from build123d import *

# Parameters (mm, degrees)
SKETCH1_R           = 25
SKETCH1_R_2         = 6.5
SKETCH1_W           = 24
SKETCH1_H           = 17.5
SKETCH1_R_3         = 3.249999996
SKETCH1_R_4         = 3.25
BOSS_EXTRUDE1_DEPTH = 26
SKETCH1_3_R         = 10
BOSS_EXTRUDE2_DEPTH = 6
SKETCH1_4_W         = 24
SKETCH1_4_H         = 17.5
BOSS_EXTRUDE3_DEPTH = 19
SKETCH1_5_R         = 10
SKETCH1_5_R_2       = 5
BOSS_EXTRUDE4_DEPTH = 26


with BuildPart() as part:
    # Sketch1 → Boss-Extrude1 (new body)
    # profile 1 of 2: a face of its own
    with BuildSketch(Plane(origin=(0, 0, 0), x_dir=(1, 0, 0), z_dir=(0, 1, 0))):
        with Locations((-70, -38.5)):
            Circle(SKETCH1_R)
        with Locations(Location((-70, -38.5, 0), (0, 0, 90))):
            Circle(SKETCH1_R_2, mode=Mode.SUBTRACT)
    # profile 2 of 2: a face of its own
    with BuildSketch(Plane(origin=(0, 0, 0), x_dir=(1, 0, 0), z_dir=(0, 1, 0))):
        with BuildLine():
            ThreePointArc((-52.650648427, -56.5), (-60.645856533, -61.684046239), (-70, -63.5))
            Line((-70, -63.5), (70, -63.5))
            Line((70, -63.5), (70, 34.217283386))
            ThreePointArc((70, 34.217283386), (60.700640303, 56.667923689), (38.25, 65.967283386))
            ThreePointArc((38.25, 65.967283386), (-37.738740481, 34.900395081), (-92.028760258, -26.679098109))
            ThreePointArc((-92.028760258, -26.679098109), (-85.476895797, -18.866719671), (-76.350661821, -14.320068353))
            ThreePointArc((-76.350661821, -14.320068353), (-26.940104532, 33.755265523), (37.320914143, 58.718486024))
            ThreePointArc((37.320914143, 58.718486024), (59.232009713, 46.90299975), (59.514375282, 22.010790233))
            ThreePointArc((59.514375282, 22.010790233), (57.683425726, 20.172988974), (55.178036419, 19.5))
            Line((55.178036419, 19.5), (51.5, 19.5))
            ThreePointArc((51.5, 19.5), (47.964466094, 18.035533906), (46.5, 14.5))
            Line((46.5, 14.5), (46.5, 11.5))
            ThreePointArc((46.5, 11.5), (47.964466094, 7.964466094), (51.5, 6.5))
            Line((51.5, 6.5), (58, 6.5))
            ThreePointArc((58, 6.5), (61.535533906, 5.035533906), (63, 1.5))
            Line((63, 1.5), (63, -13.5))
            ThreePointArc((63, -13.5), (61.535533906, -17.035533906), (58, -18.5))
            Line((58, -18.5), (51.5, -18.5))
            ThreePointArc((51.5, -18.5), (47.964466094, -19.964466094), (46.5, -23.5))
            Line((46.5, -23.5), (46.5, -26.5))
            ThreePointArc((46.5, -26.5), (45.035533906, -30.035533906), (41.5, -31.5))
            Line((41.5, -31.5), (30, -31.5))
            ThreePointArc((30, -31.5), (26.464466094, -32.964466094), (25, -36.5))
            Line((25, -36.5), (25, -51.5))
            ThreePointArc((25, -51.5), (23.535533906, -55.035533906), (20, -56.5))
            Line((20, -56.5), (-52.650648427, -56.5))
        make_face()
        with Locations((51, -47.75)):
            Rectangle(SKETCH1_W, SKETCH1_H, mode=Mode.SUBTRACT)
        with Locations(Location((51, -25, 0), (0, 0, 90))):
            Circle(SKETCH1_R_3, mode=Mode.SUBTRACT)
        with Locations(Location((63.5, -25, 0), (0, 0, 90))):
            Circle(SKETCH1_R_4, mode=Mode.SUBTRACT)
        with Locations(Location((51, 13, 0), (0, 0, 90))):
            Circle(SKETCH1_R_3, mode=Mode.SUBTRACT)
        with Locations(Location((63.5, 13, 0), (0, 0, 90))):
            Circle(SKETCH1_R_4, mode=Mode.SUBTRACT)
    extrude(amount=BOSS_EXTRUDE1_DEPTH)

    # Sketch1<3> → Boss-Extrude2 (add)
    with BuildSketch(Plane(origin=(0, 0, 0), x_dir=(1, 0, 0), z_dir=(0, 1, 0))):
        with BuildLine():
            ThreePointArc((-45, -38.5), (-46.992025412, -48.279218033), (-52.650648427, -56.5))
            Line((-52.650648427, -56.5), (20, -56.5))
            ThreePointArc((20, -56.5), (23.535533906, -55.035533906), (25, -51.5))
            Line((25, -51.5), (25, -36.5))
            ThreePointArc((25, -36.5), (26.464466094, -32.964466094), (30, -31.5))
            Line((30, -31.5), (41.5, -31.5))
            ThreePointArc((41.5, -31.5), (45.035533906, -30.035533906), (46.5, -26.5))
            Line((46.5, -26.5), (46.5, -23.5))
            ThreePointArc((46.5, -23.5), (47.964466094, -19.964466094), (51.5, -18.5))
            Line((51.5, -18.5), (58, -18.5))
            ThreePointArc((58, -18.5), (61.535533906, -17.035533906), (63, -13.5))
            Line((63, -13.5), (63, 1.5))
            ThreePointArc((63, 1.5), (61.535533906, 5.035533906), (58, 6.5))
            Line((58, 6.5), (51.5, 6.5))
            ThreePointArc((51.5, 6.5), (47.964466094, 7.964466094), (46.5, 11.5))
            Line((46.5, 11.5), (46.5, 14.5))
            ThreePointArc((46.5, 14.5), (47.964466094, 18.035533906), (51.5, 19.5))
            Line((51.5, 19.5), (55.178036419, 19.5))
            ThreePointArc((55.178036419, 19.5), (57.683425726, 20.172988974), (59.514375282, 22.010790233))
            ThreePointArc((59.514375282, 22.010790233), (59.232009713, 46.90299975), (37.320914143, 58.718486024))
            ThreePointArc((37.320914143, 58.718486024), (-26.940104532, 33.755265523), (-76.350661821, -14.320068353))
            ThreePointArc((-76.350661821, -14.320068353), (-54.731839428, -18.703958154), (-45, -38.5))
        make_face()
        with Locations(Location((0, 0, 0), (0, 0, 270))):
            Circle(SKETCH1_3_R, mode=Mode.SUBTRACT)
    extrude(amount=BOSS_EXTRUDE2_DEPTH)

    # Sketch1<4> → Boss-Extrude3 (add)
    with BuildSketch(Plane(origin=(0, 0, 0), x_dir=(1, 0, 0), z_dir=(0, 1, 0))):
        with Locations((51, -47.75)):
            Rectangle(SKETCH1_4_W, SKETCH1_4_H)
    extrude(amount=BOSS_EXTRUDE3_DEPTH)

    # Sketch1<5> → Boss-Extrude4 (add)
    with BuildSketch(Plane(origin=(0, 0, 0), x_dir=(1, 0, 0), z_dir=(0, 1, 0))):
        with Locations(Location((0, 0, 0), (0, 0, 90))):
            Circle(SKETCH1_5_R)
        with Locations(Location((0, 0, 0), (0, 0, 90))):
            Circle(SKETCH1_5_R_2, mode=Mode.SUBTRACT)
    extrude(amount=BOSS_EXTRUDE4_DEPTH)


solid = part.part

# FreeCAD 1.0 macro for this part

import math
import FreeCAD as App
import Part
import Sketcher
from FreeCAD import Vector

doc = App.newDocument("Part")
body = doc.addObject("PartDesign::Body", "Body")

# Sketch on XZ plane
sketch1 = body.newObject("Sketcher::SketchObject", "Sketch")
sketch1.AttachmentSupport = (doc.getObject("XZ_Plane"), [""])
sketch1.MapMode = "FlatFace"
sketch1.addGeometry([
    Part.ArcOfCircle(Part.Circle(Vector(-70, 38.5, 0), Vector(0, 0, 1), 25), math.radians(90), math.radians(208.21855)),  # 0
    Part.LineSegment(Vector(-70, 63.5, 0), Vector(70, 63.5, 0)),  # 1
    Part.LineSegment(Vector(70, 63.5, 0), Vector(70, -34.217283, 0)),  # 2
    Part.ArcOfCircle(Part.Circle(Vector(38.25, -34.217283, 0), Vector(0, 0, 1), 31.75), math.radians(-90), math.radians(0)),  # 3
    Part.ArcOfCircle(Part.Circle(Vector(66.578314, 111.789592, 0), Vector(0, 0, 1), 180), math.radians(-151.78145), math.radians(-99.054827)),  # 4
    Part.ArcOfCircle(Part.Circle(Vector(66.578314, 111.789592, 0), Vector(0, 0, 1), 173), math.radians(-145.708211), math.radians(-99.736537)),  # 5
    Part.ArcOfCircle(Part.Circle(Vector(38.25, -34.217283, 0), Vector(0, 0, 1), 24.518812), math.radians(-92.171616), math.radians(29.857327)),  # 6
    Part.ArcOfCircle(Part.Circle(Vector(55.178036, -24.5, 0), Vector(0, 0, 1), 5), math.radians(29.857327), math.radians(90)),  # 7
    Part.LineSegment(Vector(55.178036, -19.5, 0), Vector(51.5, -19.5, 0)),  # 8
    Part.ArcOfCircle(Part.Circle(Vector(51.5, -14.5, 0), Vector(0, 0, 1), 5), math.radians(180), math.radians(270)),  # 9
    Part.LineSegment(Vector(46.5, -14.5, 0), Vector(46.5, -11.5, 0)),  # 10
    Part.ArcOfCircle(Part.Circle(Vector(51.5, -11.5, 0), Vector(0, 0, 1), 5), math.radians(90), math.radians(180)),  # 11
    Part.LineSegment(Vector(51.5, -6.5, 0), Vector(58, -6.5, 0)),  # 12
    Part.ArcOfCircle(Part.Circle(Vector(58, -1.5, 0), Vector(0, 0, 1), 5), math.radians(-90), math.radians(0)),  # 13
    Part.LineSegment(Vector(63, -1.5, 0), Vector(63, 13.5, 0)),  # 14
    Part.ArcOfCircle(Part.Circle(Vector(58, 13.5, 0), Vector(0, 0, 1), 5), math.radians(0), math.radians(90)),  # 15
    Part.LineSegment(Vector(58, 18.5, 0), Vector(51.5, 18.5, 0)),  # 16
    Part.ArcOfCircle(Part.Circle(Vector(51.5, 23.5, 0), Vector(0, 0, 1), 5), math.radians(180), math.radians(270)),  # 17
    Part.LineSegment(Vector(46.5, 23.5, 0), Vector(46.5, 26.5, 0)),  # 18
    Part.ArcOfCircle(Part.Circle(Vector(41.5, 26.5, 0), Vector(0, 0, 1), 5), math.radians(0), math.radians(90)),  # 19
    Part.LineSegment(Vector(41.5, 31.5, 0), Vector(30, 31.5, 0)),  # 20
    Part.ArcOfCircle(Part.Circle(Vector(30, 36.5, 0), Vector(0, 0, 1), 5), math.radians(180), math.radians(270)),  # 21
    Part.LineSegment(Vector(25, 36.5, 0), Vector(25, 51.5, 0)),  # 22
    Part.ArcOfCircle(Part.Circle(Vector(20, 51.5, 0), Vector(0, 0, 1), 5), math.radians(0), math.radians(90)),  # 23
    Part.LineSegment(Vector(20, 56.5, 0), Vector(-52.650648, 56.5, 0)),  # 24
    Part.ArcOfCircle(Part.Circle(Vector(-70, 38.5, 0), Vector(0, 0, 1), 25), math.radians(-104.715907), math.radians(46.05448)),  # 25
    Part.Circle(Vector(-70, 38.5, 0), Vector(0, 0, 1), 6.5),  # 26
    Part.Circle(Vector(51, -13, 0), Vector(0, 0, 1), 3.25),  # 27
    Part.Circle(Vector(63.5, -13, 0), Vector(0, 0, 1), 3.25),  # 28
    Part.LineSegment(Vector(63, 56.5, 0), Vector(39, 56.5, 0)),  # 29
    Part.LineSegment(Vector(39, 56.5, 0), Vector(39, 39, 0)),  # 30
    Part.LineSegment(Vector(39, 39, 0), Vector(63, 39, 0)),  # 31
    Part.LineSegment(Vector(63, 39, 0), Vector(63, 56.5, 0)),  # 32
    Part.Circle(Vector(51, 25, 0), Vector(0, 0, 1), 3.25),  # 33
    Part.Circle(Vector(63.5, 25, 0), Vector(0, 0, 1), 3.25),  # 34
], False)
sketch1.addConstraint([
    Sketcher.Constraint("Tangent", 0, 1, 1, 1),
    Sketcher.Constraint("Coincident", 1, 2, 2, 1),
    Sketcher.Constraint("Tangent", 2, 2, 3, 2),
    Sketcher.Constraint("Coincident", 3, 1, 4, 2),
    Sketcher.Constraint("Tangent", 4, 1, 0, 2),
    Sketcher.Constraint("Coincident", 5, 2, 6, 1),
    Sketcher.Constraint("Tangent", 6, 2, 7, 1),
    Sketcher.Constraint("Tangent", 7, 2, 8, 1),
    Sketcher.Constraint("Tangent", 8, 2, 9, 2),
    Sketcher.Constraint("Tangent", 9, 1, 10, 1),
    Sketcher.Constraint("Tangent", 10, 2, 11, 2),
    Sketcher.Constraint("Tangent", 11, 1, 12, 1),
    Sketcher.Constraint("Tangent", 12, 2, 13, 1),
    Sketcher.Constraint("Tangent", 13, 2, 14, 1),
    Sketcher.Constraint("Tangent", 14, 2, 15, 1),
    Sketcher.Constraint("Tangent", 15, 2, 16, 1),
    Sketcher.Constraint("Tangent", 16, 2, 17, 2),
    Sketcher.Constraint("Tangent", 17, 1, 18, 1),
    Sketcher.Constraint("Tangent", 18, 2, 19, 1),
    Sketcher.Constraint("Tangent", 19, 2, 20, 1),
    Sketcher.Constraint("Tangent", 20, 2, 21, 2),
    Sketcher.Constraint("Tangent", 21, 1, 22, 1),
    Sketcher.Constraint("Tangent", 22, 2, 23, 1),
    Sketcher.Constraint("Tangent", 23, 2, 24, 1),
    Sketcher.Constraint("Coincident", 24, 2, 25, 2),
    Sketcher.Constraint("Coincident", 25, 1, 5, 1),
    Sketcher.Constraint("Coincident", 29, 2, 30, 1),
    Sketcher.Constraint("Coincident", 30, 2, 31, 1),
    Sketcher.Constraint("Coincident", 31, 2, 32, 1),
    Sketcher.Constraint("Coincident", 32, 2, 29, 1),
    Sketcher.Constraint("Horizontal", 1),
    Sketcher.Constraint("Vertical", 2),
    Sketcher.Constraint("Horizontal", 8),
    Sketcher.Constraint("Vertical", 10),
    Sketcher.Constraint("Horizontal", 12),
    Sketcher.Constraint("Vertical", 14),
    Sketcher.Constraint("Horizontal", 16),
    Sketcher.Constraint("Vertical", 18),
    Sketcher.Constraint("Horizontal", 20),
    Sketcher.Constraint("Vertical", 22),
    Sketcher.Constraint("Horizontal", 24),
    Sketcher.Constraint("Horizontal", 29),
    Sketcher.Constraint("Vertical", 30),
    Sketcher.Constraint("Horizontal", 31),
    Sketcher.Constraint("Vertical", 32),
    Sketcher.Constraint("Coincident", 5, 3, 4, 3),
    Sketcher.Constraint("Coincident", 6, 3, 3, 3),
    Sketcher.Constraint("Coincident", 25, 3, 0, 3),
    Sketcher.Constraint("Coincident", 26, 3, 0, 3),
    Sketcher.Constraint("Equal", 7, 9),
    Sketcher.Constraint("Equal", 9, 11),
    Sketcher.Constraint("Equal", 11, 13),
    Sketcher.Constraint("Equal", 13, 15),
    Sketcher.Constraint("Equal", 15, 17),
    Sketcher.Constraint("Equal", 17, 19),
    Sketcher.Constraint("Equal", 19, 21),
    Sketcher.Constraint("Equal", 21, 23),
    Sketcher.Constraint("Equal", 0, 25),
    Sketcher.Constraint("Equal", 27, 28),
    Sketcher.Constraint("Equal", 28, 33),
    Sketcher.Constraint("Equal", 33, 34),
    Sketcher.Constraint("Horizontal", 27, 3, 28, 3),
    Sketcher.Constraint("Horizontal", 33, 3, 34, 3),
    Sketcher.Constraint("Horizontal", 24, 2, 29, 2),
    Sketcher.Constraint("Vertical", 11, 3, 17, 3),
    Sketcher.Constraint("Vertical", 27, 3, 33, 3),
    Sketcher.Constraint("Vertical", 28, 3, 34, 3),
    Sketcher.Constraint("Vertical", 6, 3, 3, 1),
    Sketcher.Constraint("Vertical", 14, 2, 31, 2),
    Sketcher.Constraint("Equal", 10, 18),
    Sketcher.Constraint("Equal", 14, 22),
    Sketcher.Constraint("Diameter", 26, 13.0),
    Sketcher.Constraint("Radius", 0, 25.0),
    Sketcher.Constraint("Radius", 4, 180.0),
    Sketcher.Constraint("Radius", 5, 173.0),
    Sketcher.Constraint("Radius", 7, 5.0),
    Sketcher.Constraint("Diameter", 27, 6.5),
    Sketcher.Constraint("DistanceX", 1, 1, 1, 2, 140.0),
    Sketcher.Constraint("DistanceX", 29, 2, 29, 1, 24.0),
    Sketcher.Constraint("DistanceY", 10, 1, 10, 2, 3.0),
    Sketcher.Constraint("DistanceY", 14, 1, 14, 2, 15.0),
    Sketcher.Constraint("Radius", 3, 31.75),
    Sketcher.Constraint("DistanceX", 12, 1, 12, 2, 6.5),
    Sketcher.Constraint("DistanceX", 20, 2, 20, 1, 11.5),
    Sketcher.Constraint("DistanceY", 30, 2, 30, 1, 17.5),
    Sketcher.Constraint("DistanceX", 0, 3, -1, 1, 70.0),
    Sketcher.Constraint("DistanceX", -1, 1, 13, 3, 58.0),
    Sketcher.Constraint("DistanceX", -1, 1, 27, 3, 51.0),
    Sketcher.Constraint("DistanceY", 27, 3, -1, 1, 13.0),
    Sketcher.Constraint("DistanceY", -1, 1, 33, 3, 25.0),
    Sketcher.Constraint("DistanceY", -1, 1, 30, 2, 39.0),
    Sketcher.Constraint("DistanceY", 7, 3, 0, 3, 63.0),
    Sketcher.Constraint("DistanceX", 9, 3, 28, 3, 12.0),
    Sketcher.Constraint("Radius", 6, 24.518812),
    Sketcher.Constraint("DistanceX", 8, 2, 8, 1, 3.678036),
])
pad1 = body.newObject("PartDesign::Pad", "Pad")
pad1.Profile = sketch1
pad1.Length = 26
pad1.Reversed = True

# Sketch on XZ plane
sketch2 = body.newObject("Sketcher::SketchObject", "Sketch001")
sketch2.AttachmentSupport = (doc.getObject("XZ_Plane"), [""])
sketch2.MapMode = "FlatFace"
sketch2.addGeometry([
    Part.ArcOfCircle(Part.Circle(Vector(-70, 38.5, 0), Vector(0, 0, 1), 25), math.radians(0), math.radians(46.05448)),  # 0
    Part.LineSegment(Vector(-52.650648, 56.5, 0), Vector(20, 56.5, 0)),  # 1
    Part.ArcOfCircle(Part.Circle(Vector(20, 51.5, 0), Vector(0, 0, 1), 5), math.radians(0), math.radians(90)),  # 2
    Part.LineSegment(Vector(25, 51.5, 0), Vector(25, 36.5, 0)),  # 3
    Part.ArcOfCircle(Part.Circle(Vector(30, 36.5, 0), Vector(0, 0, 1), 5), math.radians(180), math.radians(270)),  # 4
    Part.LineSegment(Vector(30, 31.5, 0), Vector(41.5, 31.5, 0)),  # 5
    Part.ArcOfCircle(Part.Circle(Vector(41.5, 26.5, 0), Vector(0, 0, 1), 5), math.radians(0), math.radians(90)),  # 6
    Part.LineSegment(Vector(46.5, 26.5, 0), Vector(46.5, 23.5, 0)),  # 7
    Part.ArcOfCircle(Part.Circle(Vector(51.5, 23.5, 0), Vector(0, 0, 1), 5), math.radians(180), math.radians(270)),  # 8
    Part.LineSegment(Vector(51.5, 18.5, 0), Vector(58, 18.5, 0)),  # 9
    Part.ArcOfCircle(Part.Circle(Vector(58, 13.5, 0), Vector(0, 0, 1), 5), math.radians(0), math.radians(90)),  # 10
    Part.LineSegment(Vector(63, 13.5, 0), Vector(63, -1.5, 0)),  # 11
    Part.ArcOfCircle(Part.Circle(Vector(58, -1.5, 0), Vector(0, 0, 1), 5), math.radians(-90), math.radians(0)),  # 12
    Part.LineSegment(Vector(58, -6.5, 0), Vector(51.5, -6.5, 0)),  # 13
    Part.ArcOfCircle(Part.Circle(Vector(51.5, -11.5, 0), Vector(0, 0, 1), 5), math.radians(90), math.radians(180)),  # 14
    Part.LineSegment(Vector(46.5, -11.5, 0), Vector(46.5, -14.5, 0)),  # 15
    Part.ArcOfCircle(Part.Circle(Vector(51.5, -14.5, 0), Vector(0, 0, 1), 5), math.radians(180), math.radians(270)),  # 16
    Part.LineSegment(Vector(51.5, -19.5, 0), Vector(55.178036, -19.5, 0)),  # 17
    Part.ArcOfCircle(Part.Circle(Vector(55.178036, -24.5, 0), Vector(0, 0, 1), 5), math.radians(29.857327), math.radians(90)),  # 18
    Part.ArcOfCircle(Part.Circle(Vector(38.25, -34.217283, 0), Vector(0, 0, 1), 24.518812), math.radians(-92.171616), math.radians(29.857327)),  # 19
    Part.ArcOfCircle(Part.Circle(Vector(66.578314, 111.789592, 0), Vector(0, 0, 1), 173), math.radians(-145.708211), math.radians(-99.736537)),  # 20
    Part.ArcOfCircle(Part.Circle(Vector(-70, 38.5, 0), Vector(0, 0, 1), 25), math.radians(-104.715907), math.radians(0)),  # 21
    Part.Circle(Vector(0, 0, 0), Vector(0, 0, 1), 10),  # 22
], False)
sketch2.addConstraint([
    Sketcher.Constraint("Coincident", 0, 2, 1, 1),
    Sketcher.Constraint("Tangent", 1, 2, 2, 2),
    Sketcher.Constraint("Tangent", 2, 1, 3, 1),
    Sketcher.Constraint("Tangent", 3, 2, 4, 1),
    Sketcher.Constraint("Tangent", 4, 2, 5, 1),
    Sketcher.Constraint("Tangent", 5, 2, 6, 2),
    Sketcher.Constraint("Tangent", 6, 1, 7, 1),
    Sketcher.Constraint("Tangent", 7, 2, 8, 1),
    Sketcher.Constraint("Tangent", 8, 2, 9, 1),
    Sketcher.Constraint("Tangent", 9, 2, 10, 2),
    Sketcher.Constraint("Tangent", 10, 1, 11, 1),
    Sketcher.Constraint("Tangent", 11, 2, 12, 2),
    Sketcher.Constraint("Tangent", 12, 1, 13, 1),
    Sketcher.Constraint("Tangent", 13, 2, 14, 1),
    Sketcher.Constraint("Tangent", 14, 2, 15, 1),
    Sketcher.Constraint("Tangent", 15, 2, 16, 1),
    Sketcher.Constraint("Tangent", 16, 2, 17, 1),
    Sketcher.Constraint("Tangent", 17, 2, 18, 2),
    Sketcher.Constraint("Tangent", 18, 1, 19, 2),
    Sketcher.Constraint("Coincident", 19, 1, 20, 2),
    Sketcher.Constraint("Coincident", 20, 1, 21, 1),
    Sketcher.Constraint("Tangent", 21, 2, 0, 1),
    Sketcher.Constraint("Horizontal", 1),
    Sketcher.Constraint("Vertical", 3),
    Sketcher.Constraint("Horizontal", 5),
    Sketcher.Constraint("Vertical", 7),
    Sketcher.Constraint("Horizontal", 9),
    Sketcher.Constraint("Vertical", 11),
    Sketcher.Constraint("Horizontal", 13),
    Sketcher.Constraint("Vertical", 15),
    Sketcher.Constraint("Horizontal", 17),
    Sketcher.Constraint("Coincident", 22, 3, -1, 1),
    Sketcher.Constraint("Equal", 2, 4),
    Sketcher.Constraint("Equal", 4, 6),
    Sketcher.Constraint("Equal", 6, 8),
    Sketcher.Constraint("Equal", 8, 10),
    Sketcher.Constraint("Equal", 10, 12),
    Sketcher.Constraint("Equal", 12, 14),
    Sketcher.Constraint("Equal", 14, 16),
    Sketcher.Constraint("Equal", 16, 18),
    Sketcher.Constraint("Equal", 0, 21),
    Sketcher.Constraint("Horizontal", 0, 3, 21, 2),
    Sketcher.Constraint("Vertical", 8, 3, 14, 3),
    Sketcher.Constraint("Equal", 3, 11),
    Sketcher.Constraint("Equal", 7, 15),
    Sketcher.Constraint("Diameter", 22, 20.0),
    Sketcher.Constraint("Radius", 0, 25.0),
    Sketcher.Constraint("Radius", 2, 5.0),
    Sketcher.Constraint("Radius", 20, 173.0),
    Sketcher.Constraint("DistanceY", 3, 2, 3, 1, 15.0),
    Sketcher.Constraint("DistanceY", 7, 2, 7, 1, 3.0),
    Sketcher.Constraint("DistanceX", 5, 1, 5, 2, 11.5),
    Sketcher.Constraint("DistanceX", 9, 1, 9, 2, 6.5),
    Sketcher.Constraint("DistanceX", 0, 3, -1, 1, 70.0),
    Sketcher.Constraint("DistanceX", -1, 1, 2, 3, 20.0),
    Sketcher.Constraint("DistanceY", 0, 3, 2, 3, 13.0),
    Sketcher.Constraint("DistanceY", -1, 1, 0, 3, 38.5),
    Sketcher.Constraint("DistanceX", -1, 1, 19, 3, 38.25),
    Sketcher.Constraint("Radius", 19, 24.518812),
    Sketcher.Constraint("DistanceX", 17, 1, 17, 2, 3.678036),
    Sketcher.Constraint("DistanceY", -1, 1, 20, 3, 111.789592),
    Sketcher.Constraint("DistanceX", 20, 1, -1, 1, 76.350662),
])
pad2 = body.newObject("PartDesign::Pad", "Pad001")
pad2.Profile = sketch2
pad2.Length = 6
pad2.Reversed = True

# Sketch on XZ plane
sketch3 = body.newObject("Sketcher::SketchObject", "Sketch002")
sketch3.AttachmentSupport = (doc.getObject("XZ_Plane"), [""])
sketch3.MapMode = "FlatFace"
sketch3.addGeometry([
    Part.LineSegment(Vector(39, 39, 0), Vector(39, 56.5, 0)),
    Part.LineSegment(Vector(39, 56.5, 0), Vector(63, 56.5, 0)),
    Part.LineSegment(Vector(63, 56.5, 0), Vector(63, 39, 0)),
    Part.LineSegment(Vector(63, 39, 0), Vector(39, 39, 0)),
], False)
sketch3.addConstraint([
    Sketcher.Constraint("Coincident", 0, 2, 1, 1),
    Sketcher.Constraint("Coincident", 1, 2, 2, 1),
    Sketcher.Constraint("Coincident", 2, 2, 3, 1),
    Sketcher.Constraint("Coincident", 3, 2, 0, 1),
    Sketcher.Constraint("Vertical", 0),
    Sketcher.Constraint("Horizontal", 1),
    Sketcher.Constraint("Vertical", 2),
    Sketcher.Constraint("Horizontal", 3),
    Sketcher.Constraint("DistanceX", 1, 1, 1, 2, 24.0),
    Sketcher.Constraint("DistanceY", 0, 1, 0, 2, 17.5),
    Sketcher.Constraint("DistanceX", -1, 1, 0, 2, 39.0),
    Sketcher.Constraint("DistanceY", -1, 1, 2, 2, 39.0),
])
pad3 = body.newObject("PartDesign::Pad", "Pad002")
pad3.Profile = sketch3
pad3.Length = 19
pad3.Reversed = True

# Sketch on XZ plane
sketch4 = body.newObject("Sketcher::SketchObject", "Sketch003")
sketch4.AttachmentSupport = (doc.getObject("XZ_Plane"), [""])
sketch4.MapMode = "FlatFace"
sketch4.addGeometry([
    Part.Circle(Vector(0, 0, 0), Vector(0, 0, 1), 10),
    Part.Circle(Vector(0, 0, 0), Vector(0, 0, 1), 5),
], False)
sketch4.addConstraint([
    Sketcher.Constraint("Coincident", 0, 3, -1, 1),
    Sketcher.Constraint("Coincident", 1, 3, -1, 1),
    Sketcher.Constraint("Diameter", 0, 20.0),
    Sketcher.Constraint("Diameter", 1, 10.0),
])
pad4 = body.newObject("PartDesign::Pad", "Pad003")
pad4.Profile = sketch4
pad4.Length = 26
pad4.Reversed = True

doc.recompute()
